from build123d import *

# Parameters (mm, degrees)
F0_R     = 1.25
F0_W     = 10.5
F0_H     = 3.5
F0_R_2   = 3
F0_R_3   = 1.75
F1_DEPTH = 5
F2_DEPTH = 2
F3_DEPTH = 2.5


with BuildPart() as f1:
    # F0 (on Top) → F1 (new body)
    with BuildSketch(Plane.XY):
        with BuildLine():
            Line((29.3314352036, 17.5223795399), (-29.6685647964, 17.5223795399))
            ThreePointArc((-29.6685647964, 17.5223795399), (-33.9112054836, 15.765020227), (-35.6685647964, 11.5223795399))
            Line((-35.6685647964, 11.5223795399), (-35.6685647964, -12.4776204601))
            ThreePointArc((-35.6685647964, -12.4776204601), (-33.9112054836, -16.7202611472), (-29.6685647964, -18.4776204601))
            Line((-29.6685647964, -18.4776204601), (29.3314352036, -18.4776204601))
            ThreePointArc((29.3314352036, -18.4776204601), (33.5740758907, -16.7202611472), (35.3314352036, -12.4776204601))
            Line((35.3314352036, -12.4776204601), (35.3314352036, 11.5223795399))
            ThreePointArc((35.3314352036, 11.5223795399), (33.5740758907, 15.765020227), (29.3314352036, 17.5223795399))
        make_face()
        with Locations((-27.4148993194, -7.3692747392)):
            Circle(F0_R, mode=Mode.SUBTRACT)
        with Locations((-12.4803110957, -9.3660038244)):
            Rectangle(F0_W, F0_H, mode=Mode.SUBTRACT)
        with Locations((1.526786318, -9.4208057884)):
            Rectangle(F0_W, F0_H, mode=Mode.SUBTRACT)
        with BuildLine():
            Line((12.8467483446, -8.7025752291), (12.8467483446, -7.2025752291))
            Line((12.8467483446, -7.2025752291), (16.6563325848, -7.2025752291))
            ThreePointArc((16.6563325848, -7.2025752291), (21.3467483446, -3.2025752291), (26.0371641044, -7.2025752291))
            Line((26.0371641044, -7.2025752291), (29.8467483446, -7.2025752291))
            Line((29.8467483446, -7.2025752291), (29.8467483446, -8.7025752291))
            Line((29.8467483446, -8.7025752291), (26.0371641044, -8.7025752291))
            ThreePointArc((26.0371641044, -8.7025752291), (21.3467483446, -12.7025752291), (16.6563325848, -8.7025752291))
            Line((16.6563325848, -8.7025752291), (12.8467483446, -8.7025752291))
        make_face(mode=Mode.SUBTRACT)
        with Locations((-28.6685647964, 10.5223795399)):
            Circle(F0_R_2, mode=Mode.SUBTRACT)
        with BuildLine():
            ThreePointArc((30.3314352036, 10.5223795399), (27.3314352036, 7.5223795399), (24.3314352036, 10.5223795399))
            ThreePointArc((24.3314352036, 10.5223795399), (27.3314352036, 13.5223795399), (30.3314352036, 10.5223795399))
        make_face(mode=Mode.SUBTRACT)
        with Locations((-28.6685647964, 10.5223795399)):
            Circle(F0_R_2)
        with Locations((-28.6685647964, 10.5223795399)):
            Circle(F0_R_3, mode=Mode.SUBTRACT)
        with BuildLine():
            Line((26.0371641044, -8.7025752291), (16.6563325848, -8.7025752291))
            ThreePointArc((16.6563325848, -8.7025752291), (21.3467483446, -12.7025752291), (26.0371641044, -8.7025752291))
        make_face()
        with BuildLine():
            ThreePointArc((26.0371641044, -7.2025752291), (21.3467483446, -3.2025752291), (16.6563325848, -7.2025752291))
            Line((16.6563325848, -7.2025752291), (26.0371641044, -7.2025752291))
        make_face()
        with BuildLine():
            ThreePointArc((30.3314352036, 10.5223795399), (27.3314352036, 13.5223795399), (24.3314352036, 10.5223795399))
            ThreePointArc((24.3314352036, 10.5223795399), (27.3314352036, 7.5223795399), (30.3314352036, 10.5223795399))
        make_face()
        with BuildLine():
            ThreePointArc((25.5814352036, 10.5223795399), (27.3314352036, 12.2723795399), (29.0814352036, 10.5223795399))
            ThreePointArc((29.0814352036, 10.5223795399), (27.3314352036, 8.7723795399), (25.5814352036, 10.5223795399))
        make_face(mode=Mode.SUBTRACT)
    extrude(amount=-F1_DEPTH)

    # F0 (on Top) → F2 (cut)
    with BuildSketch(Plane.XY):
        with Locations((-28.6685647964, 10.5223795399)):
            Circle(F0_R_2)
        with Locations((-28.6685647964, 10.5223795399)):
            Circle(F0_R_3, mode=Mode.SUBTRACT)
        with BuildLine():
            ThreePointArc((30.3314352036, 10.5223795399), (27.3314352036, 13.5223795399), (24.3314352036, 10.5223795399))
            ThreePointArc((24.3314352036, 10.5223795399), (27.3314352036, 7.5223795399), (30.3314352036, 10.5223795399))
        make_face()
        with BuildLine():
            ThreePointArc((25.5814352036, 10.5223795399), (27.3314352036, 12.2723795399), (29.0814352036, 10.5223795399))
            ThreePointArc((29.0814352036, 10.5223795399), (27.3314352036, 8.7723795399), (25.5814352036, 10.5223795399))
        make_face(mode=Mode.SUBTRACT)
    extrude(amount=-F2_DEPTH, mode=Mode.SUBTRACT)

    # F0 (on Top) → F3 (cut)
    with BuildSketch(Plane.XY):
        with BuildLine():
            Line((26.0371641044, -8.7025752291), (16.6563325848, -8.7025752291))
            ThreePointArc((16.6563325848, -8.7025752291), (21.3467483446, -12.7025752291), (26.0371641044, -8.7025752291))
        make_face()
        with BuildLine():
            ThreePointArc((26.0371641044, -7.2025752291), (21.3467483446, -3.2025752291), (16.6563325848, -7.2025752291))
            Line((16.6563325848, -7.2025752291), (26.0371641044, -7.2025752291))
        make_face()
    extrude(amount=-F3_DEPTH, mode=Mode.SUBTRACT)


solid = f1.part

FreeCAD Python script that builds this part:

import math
import FreeCAD as App
import Part
import Sketcher
from FreeCAD import Vector
Q = App.Units.Quantity

doc = App.newDocument("Part")
body = doc.addObject("PartDesign::Body", "Body")

sketch1 = doc.addObject("Sketcher::SketchObject", "Sketch")
body.addObject(sketch1)
sketch1.AttachmentSupport = (doc.XY_Plane, [""])
sketch1.MapMode = "FlatFace"
sketch1.addGeometry([
    Part.LineSegment(Vector(29.331435, 17.52238, 0), Vector(-29.668565, 17.52238, 0)),
    Part.ArcOfCircle(Part.Circle(Vector(-29.668565, 11.52238, 0), Vector(0, 0, 1), 6), math.radians(90), math.radians(180)),
    Part.LineSegment(Vector(-35.668565, 11.52238, 0), Vector(-35.668565, -12.47762, 0)),
    Part.ArcOfCircle(Part.Circle(Vector(-29.668565, -12.47762, 0), Vector(0, 0, 1), 6), math.radians(180), math.radians(270)),
    Part.LineSegment(Vector(-29.668565, -18.47762, 0), Vector(29.331435, -18.47762, 0)),
    Part.ArcOfCircle(Part.Circle(Vector(29.331435, -12.47762, 0), Vector(0, 0, 1), 6), math.radians(-90), math.radians(0)),
    Part.LineSegment(Vector(35.331435, -12.47762, 0), Vector(35.331435, 11.52238, 0)),
    Part.ArcOfCircle(Part.Circle(Vector(29.331435, 11.52238, 0), Vector(0, 0, 1), 6), math.radians(0), math.radians(90)),
    Part.Circle(Vector(-27.414899, -7.369275, 0), Vector(0, 0, 1), 1.25),
    Part.LineSegment(Vector(-7.230311, -11.116004, 0), Vector(-17.730311, -11.116004, 0)),
    Part.LineSegment(Vector(-17.730311, -11.116004, 0), Vector(-17.730311, -7.616004, 0)),
    Part.LineSegment(Vector(-17.730311, -7.616004, 0), Vector(-7.230311, -7.616004, 0)),
    Part.LineSegment(Vector(-7.230311, -7.616004, 0), Vector(-7.230311, -11.116004, 0)),
    Part.LineSegment(Vector(6.776786, -11.170806, 0), Vector(-3.723214, -11.170806, 0)),
    Part.LineSegment(Vector(-3.723214, -11.170806, 0), Vector(-3.723214, -7.670806, 0)),
    Part.LineSegment(Vector(-3.723214, -7.670806, 0), Vector(6.776786, -7.670806, 0)),
    Part.LineSegment(Vector(6.776786, -7.670806, 0), Vector(6.776786, -11.170806, 0)),
    Part.LineSegment(Vector(12.846748, -8.702575, 0), Vector(12.846748, -7.202575, 0)),
    Part.LineSegment(Vector(12.846748, -7.202575, 0), Vector(29.846748, -7.202575, 0)),
    Part.LineSegment(Vector(29.846748, -7.202575, 0), Vector(29.846748, -8.702575, 0)),
    Part.LineSegment(Vector(29.846748, -8.702575, 0), Vector(12.846748, -8.702575, 0)),
    Part.Circle(Vector(-28.668565, 10.52238, 0), Vector(0, 0, 1), 1.75),
    Part.Circle(Vector(27.331435, 10.52238, 0), Vector(0, 0, 1), 1.75),
], False)
sketch1.addConstraint([
    Sketcher.Constraint("Tangent", 0, 2, 1, 1),
    Sketcher.Constraint("Tangent", 1, 2, 2, 1),
    Sketcher.Constraint("Tangent", 2, 2, 3, 1),
    Sketcher.Constraint("Tangent", 3, 2, 4, 1),
    Sketcher.Constraint("Tangent", 4, 2, 5, 1),
    Sketcher.Constraint("Tangent", 5, 2, 6, 1),
    Sketcher.Constraint("Tangent", 6, 2, 7, 1),
    Sketcher.Constraint("Tangent", 7, 2, 0, 1),
    Sketcher.Constraint("Coincident", 9, 2, 10, 1),
    Sketcher.Constraint("Coincident", 10, 2, 11, 1),
    Sketcher.Constraint("Coincident", 11, 2, 12, 1),
    Sketcher.Constraint("Coincident", 12, 2, 9, 1),
    Sketcher.Constraint("Coincident", 13, 2, 14, 1),
    Sketcher.Constraint("Coincident", 14, 2, 15, 1),
    Sketcher.Constraint("Coincident", 15, 2, 16, 1),
    Sketcher.Constraint("Coincident", 16, 2, 13, 1),
    Sketcher.Constraint("Coincident", 17, 2, 18, 1),
    Sketcher.Constraint("Coincident", 18, 2, 19, 1),
    Sketcher.Constraint("Coincident", 19, 2, 20, 1),
    Sketcher.Constraint("Coincident", 20, 2, 17, 1),
    Sketcher.Constraint("Horizontal", 0),
    Sketcher.Constraint("Vertical", 2),
    Sketcher.Constraint("Horizontal", 4),
    Sketcher.Constraint("Vertical", 6),
    Sketcher.Constraint("Horizontal", 9),
    Sketcher.Constraint("Vertical", 10),
    Sketcher.Constraint("Horizontal", 11),
    Sketcher.Constraint("Vertical", 12),
    Sketcher.Constraint("Horizontal", 13),
    Sketcher.Constraint("Vertical", 14),
    Sketcher.Constraint("Horizontal", 15),
    Sketcher.Constraint("Vertical", 16),
    Sketcher.Constraint("Vertical", 17),
    Sketcher.Constraint("Horizontal", 18),
    Sketcher.Constraint("Vertical", 19),
    Sketcher.Constraint("Horizontal", 20),
    Sketcher.Constraint("Equal", 1, 3),
    Sketcher.Constraint("Equal", 3, 5),
    Sketcher.Constraint("Equal", 5, 7),
    Sketcher.Constraint("Equal", 21, 22),
    Sketcher.Constraint("Horizontal", 21, 3, 22, 3),
    Sketcher.Constraint("Equal", 11, 13),
    Sketcher.Constraint("Equal", 12, 14),
    Sketcher.Constraint("Radius", 1, Q("6 mm")),
    Sketcher.Constraint("Diameter", 8, Q("2.5 mm")),
    Sketcher.Constraint("Diameter", 21, Q("3.5 mm")),
    Sketcher.Constraint("DistanceX", 0, 2, 0, 1, Q("59 mm")),
    Sketcher.Constraint("DistanceX", 18, 1, 18, 2, Q("17 mm")),
    Sketcher.Constraint("DistanceY", 2, 2, 2, 1, Q("24 mm")),
    Sketcher.Constraint("DistanceX", 9, 2, 9, 1, Q("10.5 mm")),
    Sketcher.Constraint("DistanceY", 10, 1, 10, 2, Q("3.5 mm")),
    Sketcher.Constraint("DistanceY", 17, 1, 17, 2, Q("1.5 mm")),
    Sketcher.Constraint("DistanceX", 1, 3, 21, 3, Q("1 mm")),
    Sketcher.Constraint("DistanceY", 21, 3, 1, 3, Q("1 mm")),
    Sketcher.Constraint("DistanceX", 22, 3, 7, 3, Q("2 mm")),
    Sketcher.Constraint("DistanceX", 8, 3, -1, 1, Q("27.414899 mm")),
    Sketcher.Constraint("DistanceY", 13, 2, 12, 2, Q("0.054802 mm")),
    Sketcher.Constraint("DistanceY", -1, 1, 1, 3, Q("11.52238 mm")),
    Sketcher.Constraint("DistanceX", 9, 2, -1, 1, Q("17.730311 mm")),
    Sketcher.Constraint("DistanceX", -1, 1, 17, 2, Q("12.846748 mm")),
    Sketcher.Constraint("DistanceY", 9, 2, 8, 3, Q("3.746729 mm")),
    Sketcher.Constraint("DistanceX", 15, 2, 5, 3, Q("22.554649 mm")),
    Sketcher.Constraint("DistanceY", 15, 2, 17, 2, Q("0.468231 mm")),
    Sketcher.Constraint("DistanceX", 1, 3, -1, 1, Q("29.668565 mm")),
    Sketcher.Constraint("DistanceY", 8, 3, -1, 1, Q("7.369275 mm")),
])
pad1 = doc.addObject("PartDesign::Pad", "Pad")
body.addObject(pad1)
pad1.Profile = sketch1
pad1.Length = 5
pad1.Reversed = True

sketch2 = doc.addObject("Sketcher::SketchObject", "Sketch001")
body.addObject(sketch2)
sketch2.AttachmentSupport = (doc.XY_Plane, [""])
sketch2.MapMode = "FlatFace"
sketch2.addGeometry([
    Part.Circle(Vector(-28.668565, 10.52238, 0), Vector(0, 0, 1), 3),
    Part.Circle(Vector(-28.668565, 10.52238, 0), Vector(0, 0, 1), 1.75),
    Part.Circle(Vector(27.331435, 10.52238, 0), Vector(0, 0, 1), 3),
    Part.Circle(Vector(27.331435, 10.52238, 0), Vector(0, 0, 1), 1.75),
], False)
sketch2.addConstraint([
    Sketcher.Constraint("Coincident", 1, 3, 0, 3),
    Sketcher.Constraint("Coincident", 3, 3, 2, 3),
    Sketcher.Constraint("Equal", 0, 2),
    Sketcher.Constraint("Equal", 1, 3),
    Sketcher.Constraint("Horizontal", 1, 3, 2, 3),
    Sketcher.Constraint("Diameter", 0, Q("6 mm")),
    Sketcher.Constraint("Diameter", 1, Q("3.5 mm")),
    Sketcher.Constraint("DistanceX", 0, 3, 2, 3, Q("56 mm")),
    Sketcher.Constraint("DistanceY", -1, 1, 0, 3, Q("10.52238 mm")),
    Sketcher.Constraint("DistanceX", 0, 3, -1, 1, Q("28.668565 mm")),
])
pocket1 = doc.addObject("PartDesign::Pocket", "Pocket")
body.addObject(pocket1)
pocket1.Profile = sketch2
pocket1.Length = 2

sketch3 = doc.addObject("Sketcher::SketchObject", "Sketch002")
body.addObject(sketch3)
sketch3.AttachmentSupport = (doc.XY_Plane, [""])
sketch3.MapMode = "FlatFace"
sketch3.addGeometry([
    Part.LineSegment(Vector(26.037164, -8.702575, 0), Vector(16.656333, -8.702575, 0)),
    Part.ArcOfCircle(Part.Circle(Vector(21.346748, -7.952575, 0), Vector(0, 0, 1), 4.75), math.radians(-170.91528), math.radians(-9.08472)),
    Part.ArcOfCircle(Part.Circle(Vector(21.346748, -7.952575, 0), Vector(0, 0, 1), 4.75), math.radians(9.08472), math.radians(170.91528)),
    Part.LineSegment(Vector(16.656333, -7.202575, 0), Vector(26.037164, -7.202575, 0)),
], False)
sketch3.addConstraint([
    Sketcher.Constraint("Coincident", 0, 1, 1, 2),
    Sketcher.Constraint("Coincident", 1, 1, 0, 2),
    Sketcher.Constraint("Coincident", 2, 1, 3, 2),
    Sketcher.Constraint("Coincident", 3, 1, 2, 2),
    Sketcher.Constraint("Horizontal", 0),
    Sketcher.Constraint("Horizontal", 3),
    Sketcher.Constraint("Coincident", 2, 3, 1, 3),
    Sketcher.Constraint("Equal", 1, 2),
    Sketcher.Constraint("Vertical", 0, 1, 2, 1),
    Sketcher.Constraint("Radius", 1, Q("4.75 mm")),
    Sketcher.Constraint("DistanceY", 0, 1, 2, 1, Q("1.5 mm")),
    Sketcher.Constraint("DistanceX", -1, 1, 1, 3, Q("21.346748 mm")),
    Sketcher.Constraint("DistanceY", 1, 3, -1, 1, Q("7.952575 mm")),
])
pocket2 = doc.addObject("PartDesign::Pocket", "Pocket001")
body.addObject(pocket2)
pocket2.Profile = sketch3
pocket2.Length = 2.5

doc.recompute()
